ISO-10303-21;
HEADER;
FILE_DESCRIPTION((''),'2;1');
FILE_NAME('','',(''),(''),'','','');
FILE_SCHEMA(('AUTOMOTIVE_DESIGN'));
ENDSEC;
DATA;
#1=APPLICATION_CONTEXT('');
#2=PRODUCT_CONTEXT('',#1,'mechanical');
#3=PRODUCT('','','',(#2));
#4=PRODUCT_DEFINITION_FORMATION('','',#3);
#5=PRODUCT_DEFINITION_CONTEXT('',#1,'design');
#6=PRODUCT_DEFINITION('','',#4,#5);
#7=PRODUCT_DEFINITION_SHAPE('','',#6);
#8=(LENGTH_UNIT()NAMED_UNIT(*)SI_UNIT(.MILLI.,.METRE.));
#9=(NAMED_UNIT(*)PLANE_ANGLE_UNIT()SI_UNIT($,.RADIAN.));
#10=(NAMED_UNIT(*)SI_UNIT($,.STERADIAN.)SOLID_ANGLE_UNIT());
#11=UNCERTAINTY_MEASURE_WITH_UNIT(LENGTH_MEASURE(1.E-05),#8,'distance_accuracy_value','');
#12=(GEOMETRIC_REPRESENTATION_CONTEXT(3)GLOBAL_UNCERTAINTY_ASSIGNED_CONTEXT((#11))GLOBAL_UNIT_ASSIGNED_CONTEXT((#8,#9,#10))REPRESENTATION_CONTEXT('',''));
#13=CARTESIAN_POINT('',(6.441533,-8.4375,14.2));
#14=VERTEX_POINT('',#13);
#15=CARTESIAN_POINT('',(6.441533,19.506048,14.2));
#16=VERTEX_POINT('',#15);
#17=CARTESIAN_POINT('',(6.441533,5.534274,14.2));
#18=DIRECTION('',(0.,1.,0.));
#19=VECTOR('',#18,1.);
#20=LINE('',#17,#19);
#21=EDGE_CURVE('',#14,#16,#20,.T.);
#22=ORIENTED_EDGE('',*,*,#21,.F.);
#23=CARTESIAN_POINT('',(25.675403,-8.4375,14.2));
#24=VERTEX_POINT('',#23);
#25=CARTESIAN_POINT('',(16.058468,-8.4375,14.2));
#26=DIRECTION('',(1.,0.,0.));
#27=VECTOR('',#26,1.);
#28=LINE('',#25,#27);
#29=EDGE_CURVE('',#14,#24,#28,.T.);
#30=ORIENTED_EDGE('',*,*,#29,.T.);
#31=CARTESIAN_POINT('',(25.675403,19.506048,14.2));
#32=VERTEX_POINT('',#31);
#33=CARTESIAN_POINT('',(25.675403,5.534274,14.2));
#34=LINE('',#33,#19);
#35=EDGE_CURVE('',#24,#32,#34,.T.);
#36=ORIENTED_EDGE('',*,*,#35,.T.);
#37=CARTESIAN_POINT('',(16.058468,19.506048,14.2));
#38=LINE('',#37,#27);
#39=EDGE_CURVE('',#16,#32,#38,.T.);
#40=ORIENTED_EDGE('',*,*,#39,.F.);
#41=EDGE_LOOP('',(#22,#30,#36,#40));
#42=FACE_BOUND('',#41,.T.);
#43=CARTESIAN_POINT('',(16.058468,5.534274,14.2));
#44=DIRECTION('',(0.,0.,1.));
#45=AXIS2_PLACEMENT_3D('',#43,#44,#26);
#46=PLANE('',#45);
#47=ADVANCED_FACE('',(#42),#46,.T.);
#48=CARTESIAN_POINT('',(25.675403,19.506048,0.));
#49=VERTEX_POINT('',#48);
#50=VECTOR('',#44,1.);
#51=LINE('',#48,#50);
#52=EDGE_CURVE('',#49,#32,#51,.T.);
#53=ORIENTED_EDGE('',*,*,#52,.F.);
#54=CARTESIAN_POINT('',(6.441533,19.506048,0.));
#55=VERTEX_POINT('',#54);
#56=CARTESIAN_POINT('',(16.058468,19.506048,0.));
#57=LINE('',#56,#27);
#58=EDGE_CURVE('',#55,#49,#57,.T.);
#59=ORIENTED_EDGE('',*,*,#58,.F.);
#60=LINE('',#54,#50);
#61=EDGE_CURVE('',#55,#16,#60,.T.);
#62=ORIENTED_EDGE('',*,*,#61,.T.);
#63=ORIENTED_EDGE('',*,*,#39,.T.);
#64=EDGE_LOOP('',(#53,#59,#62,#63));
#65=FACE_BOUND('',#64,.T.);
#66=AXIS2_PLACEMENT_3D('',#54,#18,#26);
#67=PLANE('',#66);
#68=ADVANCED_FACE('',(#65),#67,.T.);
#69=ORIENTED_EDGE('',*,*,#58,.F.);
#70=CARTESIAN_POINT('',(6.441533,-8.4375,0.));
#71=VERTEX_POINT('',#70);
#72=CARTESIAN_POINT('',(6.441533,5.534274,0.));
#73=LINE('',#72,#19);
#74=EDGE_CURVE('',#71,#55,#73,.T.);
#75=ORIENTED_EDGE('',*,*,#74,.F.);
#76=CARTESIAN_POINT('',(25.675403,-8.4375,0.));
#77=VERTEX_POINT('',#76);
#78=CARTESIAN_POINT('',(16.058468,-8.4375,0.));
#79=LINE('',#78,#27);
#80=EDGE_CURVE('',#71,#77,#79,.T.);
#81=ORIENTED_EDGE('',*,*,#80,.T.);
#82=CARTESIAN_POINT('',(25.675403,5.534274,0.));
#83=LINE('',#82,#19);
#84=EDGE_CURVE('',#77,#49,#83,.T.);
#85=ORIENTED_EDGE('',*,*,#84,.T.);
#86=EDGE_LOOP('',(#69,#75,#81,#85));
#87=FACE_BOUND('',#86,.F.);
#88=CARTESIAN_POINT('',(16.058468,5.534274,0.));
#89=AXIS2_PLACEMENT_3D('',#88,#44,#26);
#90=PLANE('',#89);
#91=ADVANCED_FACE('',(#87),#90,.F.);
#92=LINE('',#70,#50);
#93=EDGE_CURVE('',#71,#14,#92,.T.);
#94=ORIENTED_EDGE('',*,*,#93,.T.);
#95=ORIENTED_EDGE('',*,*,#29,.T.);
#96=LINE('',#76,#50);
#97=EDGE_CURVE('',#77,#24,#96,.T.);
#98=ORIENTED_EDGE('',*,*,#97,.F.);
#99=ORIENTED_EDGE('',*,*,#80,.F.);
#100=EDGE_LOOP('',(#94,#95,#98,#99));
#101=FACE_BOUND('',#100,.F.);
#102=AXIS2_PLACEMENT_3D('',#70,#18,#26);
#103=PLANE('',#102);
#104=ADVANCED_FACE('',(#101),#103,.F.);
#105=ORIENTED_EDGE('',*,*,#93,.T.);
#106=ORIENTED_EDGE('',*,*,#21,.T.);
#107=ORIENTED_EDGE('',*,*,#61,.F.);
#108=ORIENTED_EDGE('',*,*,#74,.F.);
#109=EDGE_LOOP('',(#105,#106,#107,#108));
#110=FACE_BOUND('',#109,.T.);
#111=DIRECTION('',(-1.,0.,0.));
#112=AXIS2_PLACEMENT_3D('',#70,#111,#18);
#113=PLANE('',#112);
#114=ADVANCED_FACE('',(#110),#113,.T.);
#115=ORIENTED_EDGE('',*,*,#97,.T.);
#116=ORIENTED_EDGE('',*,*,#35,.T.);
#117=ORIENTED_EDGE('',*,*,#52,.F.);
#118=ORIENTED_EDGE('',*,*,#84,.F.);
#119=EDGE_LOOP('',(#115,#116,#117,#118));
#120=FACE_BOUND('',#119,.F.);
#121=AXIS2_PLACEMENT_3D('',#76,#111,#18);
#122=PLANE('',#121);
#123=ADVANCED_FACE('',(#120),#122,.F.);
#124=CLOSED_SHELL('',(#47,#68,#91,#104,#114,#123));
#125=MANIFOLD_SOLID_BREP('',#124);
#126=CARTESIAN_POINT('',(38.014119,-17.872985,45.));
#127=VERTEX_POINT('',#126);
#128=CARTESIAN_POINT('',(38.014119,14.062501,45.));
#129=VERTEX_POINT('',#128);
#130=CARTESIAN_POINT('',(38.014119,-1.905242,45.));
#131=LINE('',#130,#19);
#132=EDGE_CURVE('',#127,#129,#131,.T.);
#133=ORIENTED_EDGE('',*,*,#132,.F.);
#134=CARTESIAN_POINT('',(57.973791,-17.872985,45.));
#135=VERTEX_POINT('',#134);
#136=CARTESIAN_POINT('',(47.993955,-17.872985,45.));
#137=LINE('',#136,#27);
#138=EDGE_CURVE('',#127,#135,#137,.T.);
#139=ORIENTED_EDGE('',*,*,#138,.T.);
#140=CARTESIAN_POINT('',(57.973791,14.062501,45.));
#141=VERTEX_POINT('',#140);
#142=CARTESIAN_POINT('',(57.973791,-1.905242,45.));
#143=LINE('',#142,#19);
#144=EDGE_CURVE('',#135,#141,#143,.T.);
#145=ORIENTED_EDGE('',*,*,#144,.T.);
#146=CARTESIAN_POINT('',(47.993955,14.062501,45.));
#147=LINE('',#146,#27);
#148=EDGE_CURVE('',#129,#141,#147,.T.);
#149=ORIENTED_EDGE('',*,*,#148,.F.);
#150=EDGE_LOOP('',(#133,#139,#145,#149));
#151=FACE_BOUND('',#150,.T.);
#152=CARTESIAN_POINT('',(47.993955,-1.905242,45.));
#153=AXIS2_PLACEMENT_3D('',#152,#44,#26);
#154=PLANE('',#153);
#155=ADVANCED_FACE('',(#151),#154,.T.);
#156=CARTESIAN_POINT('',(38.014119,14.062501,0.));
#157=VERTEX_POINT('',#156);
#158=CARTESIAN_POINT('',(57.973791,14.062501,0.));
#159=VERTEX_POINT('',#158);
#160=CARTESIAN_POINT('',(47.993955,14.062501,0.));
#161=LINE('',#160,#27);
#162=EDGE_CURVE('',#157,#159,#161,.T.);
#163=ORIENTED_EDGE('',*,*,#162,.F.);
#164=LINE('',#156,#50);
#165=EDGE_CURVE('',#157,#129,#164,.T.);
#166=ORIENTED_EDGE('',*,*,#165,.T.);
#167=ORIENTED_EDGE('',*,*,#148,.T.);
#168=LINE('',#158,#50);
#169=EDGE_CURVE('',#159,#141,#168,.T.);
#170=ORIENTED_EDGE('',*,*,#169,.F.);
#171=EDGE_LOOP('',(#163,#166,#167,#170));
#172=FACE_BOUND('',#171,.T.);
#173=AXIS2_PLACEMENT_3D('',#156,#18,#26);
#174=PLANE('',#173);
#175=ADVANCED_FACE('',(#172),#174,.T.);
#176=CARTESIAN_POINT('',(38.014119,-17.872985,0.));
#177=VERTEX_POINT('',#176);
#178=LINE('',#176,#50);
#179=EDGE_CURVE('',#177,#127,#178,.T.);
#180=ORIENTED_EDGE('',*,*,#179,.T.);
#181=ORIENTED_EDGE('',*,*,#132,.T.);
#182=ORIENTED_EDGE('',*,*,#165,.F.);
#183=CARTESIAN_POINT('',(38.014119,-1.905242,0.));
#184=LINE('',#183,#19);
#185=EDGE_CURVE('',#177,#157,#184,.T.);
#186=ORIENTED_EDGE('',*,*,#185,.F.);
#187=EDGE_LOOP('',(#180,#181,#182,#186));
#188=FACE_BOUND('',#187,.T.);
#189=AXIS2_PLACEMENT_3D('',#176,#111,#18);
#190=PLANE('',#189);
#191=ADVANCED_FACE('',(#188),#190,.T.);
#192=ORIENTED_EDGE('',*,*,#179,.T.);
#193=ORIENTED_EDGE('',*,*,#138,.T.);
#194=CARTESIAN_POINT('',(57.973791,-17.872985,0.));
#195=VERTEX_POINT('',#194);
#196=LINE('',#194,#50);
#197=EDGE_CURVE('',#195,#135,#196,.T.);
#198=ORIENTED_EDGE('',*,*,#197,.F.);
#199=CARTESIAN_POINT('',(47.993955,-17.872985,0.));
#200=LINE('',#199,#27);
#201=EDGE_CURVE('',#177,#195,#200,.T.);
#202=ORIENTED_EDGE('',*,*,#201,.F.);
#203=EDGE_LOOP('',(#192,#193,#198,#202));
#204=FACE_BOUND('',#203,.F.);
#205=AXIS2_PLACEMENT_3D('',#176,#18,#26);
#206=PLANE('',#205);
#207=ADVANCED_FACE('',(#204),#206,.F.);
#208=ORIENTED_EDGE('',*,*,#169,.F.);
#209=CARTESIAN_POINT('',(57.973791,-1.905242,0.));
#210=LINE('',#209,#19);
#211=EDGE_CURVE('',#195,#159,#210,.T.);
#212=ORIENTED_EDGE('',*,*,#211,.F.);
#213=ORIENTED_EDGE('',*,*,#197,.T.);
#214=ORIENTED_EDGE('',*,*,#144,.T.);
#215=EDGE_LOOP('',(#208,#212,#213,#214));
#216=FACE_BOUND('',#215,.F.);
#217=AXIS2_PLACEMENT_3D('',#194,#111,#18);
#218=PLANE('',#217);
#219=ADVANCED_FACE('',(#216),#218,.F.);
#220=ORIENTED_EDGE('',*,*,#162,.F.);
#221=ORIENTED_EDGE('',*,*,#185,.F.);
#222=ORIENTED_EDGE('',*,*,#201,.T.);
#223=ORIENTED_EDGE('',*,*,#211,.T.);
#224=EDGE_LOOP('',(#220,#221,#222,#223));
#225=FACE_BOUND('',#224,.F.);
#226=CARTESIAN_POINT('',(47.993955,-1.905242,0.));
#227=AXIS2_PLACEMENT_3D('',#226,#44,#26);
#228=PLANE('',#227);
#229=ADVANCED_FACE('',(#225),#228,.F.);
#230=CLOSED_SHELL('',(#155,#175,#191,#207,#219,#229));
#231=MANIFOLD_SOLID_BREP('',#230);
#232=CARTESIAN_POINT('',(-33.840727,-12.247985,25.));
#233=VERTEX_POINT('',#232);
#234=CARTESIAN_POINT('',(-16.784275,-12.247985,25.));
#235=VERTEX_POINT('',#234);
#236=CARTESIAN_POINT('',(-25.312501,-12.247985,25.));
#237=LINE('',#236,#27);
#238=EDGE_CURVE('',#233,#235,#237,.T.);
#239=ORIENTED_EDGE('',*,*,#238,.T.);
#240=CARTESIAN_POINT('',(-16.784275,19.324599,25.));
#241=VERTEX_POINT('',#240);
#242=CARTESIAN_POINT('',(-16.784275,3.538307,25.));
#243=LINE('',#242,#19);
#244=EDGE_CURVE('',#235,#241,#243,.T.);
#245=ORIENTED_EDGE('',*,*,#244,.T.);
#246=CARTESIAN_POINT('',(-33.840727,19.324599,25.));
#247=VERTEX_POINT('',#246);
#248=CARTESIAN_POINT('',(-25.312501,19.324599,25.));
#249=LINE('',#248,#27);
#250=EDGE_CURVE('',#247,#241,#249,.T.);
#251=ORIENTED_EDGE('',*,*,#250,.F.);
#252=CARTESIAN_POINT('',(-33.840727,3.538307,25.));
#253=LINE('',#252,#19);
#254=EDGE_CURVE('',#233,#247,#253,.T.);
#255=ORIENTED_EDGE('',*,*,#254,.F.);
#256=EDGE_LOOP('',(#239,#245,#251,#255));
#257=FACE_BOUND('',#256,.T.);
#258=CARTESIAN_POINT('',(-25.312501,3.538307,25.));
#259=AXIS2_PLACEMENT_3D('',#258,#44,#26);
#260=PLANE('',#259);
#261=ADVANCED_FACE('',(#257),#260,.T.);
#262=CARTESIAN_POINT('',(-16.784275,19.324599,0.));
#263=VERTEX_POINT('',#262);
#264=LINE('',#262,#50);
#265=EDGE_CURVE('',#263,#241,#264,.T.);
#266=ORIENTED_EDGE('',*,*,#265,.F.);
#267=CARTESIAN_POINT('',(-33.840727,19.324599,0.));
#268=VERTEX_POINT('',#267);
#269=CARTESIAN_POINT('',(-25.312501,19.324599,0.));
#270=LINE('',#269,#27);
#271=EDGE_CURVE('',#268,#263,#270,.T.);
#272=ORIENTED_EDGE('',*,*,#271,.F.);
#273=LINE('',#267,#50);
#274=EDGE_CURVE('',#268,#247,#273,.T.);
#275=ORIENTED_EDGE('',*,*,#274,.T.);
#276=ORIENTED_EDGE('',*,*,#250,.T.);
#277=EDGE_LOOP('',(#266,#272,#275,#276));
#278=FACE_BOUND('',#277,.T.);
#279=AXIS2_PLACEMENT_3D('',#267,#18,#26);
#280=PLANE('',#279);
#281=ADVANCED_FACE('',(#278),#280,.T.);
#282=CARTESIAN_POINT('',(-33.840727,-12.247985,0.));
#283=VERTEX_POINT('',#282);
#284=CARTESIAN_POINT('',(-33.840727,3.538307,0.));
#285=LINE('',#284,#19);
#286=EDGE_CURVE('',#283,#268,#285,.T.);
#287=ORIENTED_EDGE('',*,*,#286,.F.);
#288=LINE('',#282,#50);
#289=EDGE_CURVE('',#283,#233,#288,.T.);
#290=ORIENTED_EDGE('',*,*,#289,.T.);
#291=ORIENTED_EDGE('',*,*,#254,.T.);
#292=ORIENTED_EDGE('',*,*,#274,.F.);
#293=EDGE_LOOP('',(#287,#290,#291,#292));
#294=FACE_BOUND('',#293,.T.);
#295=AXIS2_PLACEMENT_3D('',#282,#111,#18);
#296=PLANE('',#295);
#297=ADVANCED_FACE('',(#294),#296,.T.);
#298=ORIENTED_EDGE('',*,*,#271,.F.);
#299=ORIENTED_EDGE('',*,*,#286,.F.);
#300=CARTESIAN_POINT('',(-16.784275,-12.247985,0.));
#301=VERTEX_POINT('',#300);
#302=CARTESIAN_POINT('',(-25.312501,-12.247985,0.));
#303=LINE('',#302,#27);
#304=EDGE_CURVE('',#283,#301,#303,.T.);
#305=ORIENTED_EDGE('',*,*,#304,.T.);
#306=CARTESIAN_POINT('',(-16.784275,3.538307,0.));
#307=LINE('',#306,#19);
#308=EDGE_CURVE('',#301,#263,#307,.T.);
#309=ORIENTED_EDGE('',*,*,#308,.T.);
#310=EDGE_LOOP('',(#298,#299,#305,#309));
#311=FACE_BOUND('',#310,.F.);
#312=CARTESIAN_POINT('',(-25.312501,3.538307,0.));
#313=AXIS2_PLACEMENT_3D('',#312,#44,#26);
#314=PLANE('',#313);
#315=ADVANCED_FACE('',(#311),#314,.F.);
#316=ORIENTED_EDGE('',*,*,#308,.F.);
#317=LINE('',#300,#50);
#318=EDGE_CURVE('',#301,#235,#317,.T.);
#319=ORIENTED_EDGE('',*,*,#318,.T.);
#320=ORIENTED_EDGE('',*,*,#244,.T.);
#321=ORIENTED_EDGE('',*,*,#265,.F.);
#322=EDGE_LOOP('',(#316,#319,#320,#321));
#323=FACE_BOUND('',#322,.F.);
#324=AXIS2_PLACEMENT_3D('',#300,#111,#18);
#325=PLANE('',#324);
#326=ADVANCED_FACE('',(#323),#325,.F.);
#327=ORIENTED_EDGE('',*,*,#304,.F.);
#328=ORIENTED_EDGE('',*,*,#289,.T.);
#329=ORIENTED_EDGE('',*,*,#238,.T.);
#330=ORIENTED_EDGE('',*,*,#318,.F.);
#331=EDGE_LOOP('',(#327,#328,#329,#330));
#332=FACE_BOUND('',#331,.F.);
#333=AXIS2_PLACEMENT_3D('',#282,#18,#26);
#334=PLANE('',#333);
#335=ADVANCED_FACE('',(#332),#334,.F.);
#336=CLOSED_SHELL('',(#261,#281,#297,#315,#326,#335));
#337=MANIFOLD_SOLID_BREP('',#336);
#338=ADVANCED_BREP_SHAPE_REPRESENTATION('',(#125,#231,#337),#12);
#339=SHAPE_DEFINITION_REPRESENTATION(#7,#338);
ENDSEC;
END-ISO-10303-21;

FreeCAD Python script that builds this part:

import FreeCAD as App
import Part
import Sketcher
from FreeCAD import Vector

doc = App.newDocument("Part")
body = doc.addObject("PartDesign::Body", "Body")

# Sketch on XY plane
sketch1 = body.newObject("Sketcher::SketchObject", "Sketch")
sketch1.AttachmentSupport = (doc.getObject("XY_Plane"), [""])
sketch1.MapMode = "FlatFace"
sketch1.addGeometry(Part.LineSegment(Vector(-34, 19, 0), Vector(-34, -12, 0)), False)
sketch1.addGeometry(Part.LineSegment(Vector(-34, -12, 0), Vector(-17, -12, 0)), False)
sketch1.addGeometry(Part.LineSegment(Vector(-17, -12, 0), Vector(-17, 19, 0)), False)
sketch1.addGeometry(Part.LineSegment(Vector(-17, 19, 0), Vector(-34, 19, 0)), False)
sketch1.addConstraint(Sketcher.Constraint("Coincident", 0, 2, 1, 1))
sketch1.addConstraint(Sketcher.Constraint("Coincident", 1, 2, 2, 1))
sketch1.addConstraint(Sketcher.Constraint("Coincident", 2, 2, 3, 1))
sketch1.addConstraint(Sketcher.Constraint("Coincident", 3, 2, 0, 1))
sketch1.addConstraint(Sketcher.Constraint("Vertical", 0))
sketch1.addConstraint(Sketcher.Constraint("Horizontal", 1))
sketch1.addConstraint(Sketcher.Constraint("Vertical", 2))
sketch1.addConstraint(Sketcher.Constraint("Horizontal", 3))
sketch1.addConstraint(Sketcher.Constraint("DistanceX", 1, 1, 1, 2, 17.056452))
sketch1.addConstraint(Sketcher.Constraint("DistanceY", -1, 1, 2, 2, 19.324599))
sketch1.addConstraint(Sketcher.Constraint("DistanceY", 0, 2, 0, 1, 31.572584))
sketch1.addConstraint(Sketcher.Constraint("DistanceX", 0, 2, -1, 1, 33.840727))
pad1 = body.newObject("PartDesign::Pad", "Pad")
pad1.Profile = sketch1
pad1.Length = 25
body2 = doc.addObject("PartDesign::Body", "Body001")

# Sketch on XY plane
sketch2 = body2.newObject("Sketcher::SketchObject", "Sketch001")
sketch2.AttachmentSupport = (doc.getObject("XY_Plane001"), [""])
sketch2.MapMode = "FlatFace"
sketch2.addGeometry(Part.LineSegment(Vector(6, 20, 0), Vector(6, -8, 0)), False)
sketch2.addGeometry(Part.LineSegment(Vector(6, -8, 0), Vector(26, -8, 0)), False)
sketch2.addGeometry(Part.LineSegment(Vector(26, -8, 0), Vector(26, 20, 0)), False)
sketch2.addGeometry(Part.LineSegment(Vector(26, 20, 0), Vector(6, 20, 0)), False)
sketch2.addConstraint(Sketcher.Constraint("Coincident", 0, 2, 1, 1))
sketch2.addConstraint(Sketcher.Constraint("Coincident", 1, 2, 2, 1))
sketch2.addConstraint(Sketcher.Constraint("Coincident", 2, 2, 3, 1))
sketch2.addConstraint(Sketcher.Constraint("Coincident", 3, 2, 0, 1))
sketch2.addConstraint(Sketcher.Constraint("Vertical", 0))
sketch2.addConstraint(Sketcher.Constraint("Horizontal", 1))
sketch2.addConstraint(Sketcher.Constraint("Vertical", 2))
sketch2.addConstraint(Sketcher.Constraint("Horizontal", 3))
sketch2.addConstraint(Sketcher.Constraint("DistanceX", 1, 1, 1, 2, 19.23387))
sketch2.addConstraint(Sketcher.Constraint("DistanceY", 0, 2, 0, 1, 27.943548))
sketch2.addConstraint(Sketcher.Constraint("DistanceY", 0, 2, -1, 1, 8.4375))
sketch2.addConstraint(Sketcher.Constraint("DistanceX", -1, 1, 0, 2, 6.441533))
pad2 = body2.newObject("PartDesign::Pad", "Pad001")
pad2.Profile = sketch2
pad2.Length = 14.2
body3 = doc.addObject("PartDesign::Body", "Body002")

# Sketch on XY plane
sketch3 = body3.newObject("Sketcher::SketchObject", "Sketch002")
sketch3.AttachmentSupport = (doc.getObject("XY_Plane002"), [""])
sketch3.MapMode = "FlatFace"
sketch3.addGeometry(Part.LineSegment(Vector(38, 14, 0), Vector(38, -18, 0)), False)
sketch3.addGeometry(Part.LineSegment(Vector(38, -18, 0), Vector(58, -18, 0)), False)
sketch3.addGeometry(Part.LineSegment(Vector(58, -18, 0), Vector(58, 14, 0)), False)
sketch3.addGeometry(Part.LineSegment(Vector(58, 14, 0), Vector(38, 14, 0)), False)
sketch3.addConstraint(Sketcher.Constraint("Coincident", 0, 2, 1, 1))
sketch3.addConstraint(Sketcher.Constraint("Coincident", 1, 2, 2, 1))
sketch3.addConstraint(Sketcher.Constraint("Coincident", 2, 2, 3, 1))
sketch3.addConstraint(Sketcher.Constraint("Coincident", 3, 2, 0, 1))
sketch3.addConstraint(Sketcher.Constraint("Vertical", 0))
sketch3.addConstraint(Sketcher.Constraint("Horizontal", 1))
sketch3.addConstraint(Sketcher.Constraint("Vertical", 2))
sketch3.addConstraint(Sketcher.Constraint("Horizontal", 3))
sketch3.addConstraint(Sketcher.Constraint("DistanceY", -1, 1, 2, 2, 14.062501))
sketch3.addConstraint(Sketcher.Constraint("DistanceX", 1, 1, 1, 2, 19.959673))
sketch3.addConstraint(Sketcher.Constraint("DistanceY", 0, 2, 0, 1, 31.935486))
sketch3.addConstraint(Sketcher.Constraint("DistanceX", -1, 1, 0, 2, 38.014119))
pad3 = body3.newObject("PartDesign::Pad", "Pad002")
pad3.Profile = sketch3
pad3.Length = 45

doc.recompute()
